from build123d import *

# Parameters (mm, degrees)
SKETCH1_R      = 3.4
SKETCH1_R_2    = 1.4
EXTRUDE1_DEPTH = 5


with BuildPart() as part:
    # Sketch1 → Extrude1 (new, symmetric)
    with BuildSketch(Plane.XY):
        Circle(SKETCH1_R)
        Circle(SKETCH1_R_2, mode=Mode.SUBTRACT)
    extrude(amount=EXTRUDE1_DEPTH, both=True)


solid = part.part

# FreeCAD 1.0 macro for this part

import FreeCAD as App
import Part
import Sketcher
from FreeCAD import Vector

doc = App.newDocument("Part")
body = doc.addObject("PartDesign::Body", "Body")

sketch1 = doc.addObject("Sketcher::SketchObject", "Sketch")
body.addObject(sketch1)
sketch1.AttachmentSupport = (doc.XY_Plane, [""])
sketch1.MapMode = "FlatFace"
sketch1.addGeometry([
    Part.Circle(Vector(0, 0, 0), Vector(0, 0, 1), 3.4),
    Part.Circle(Vector(0, 0, 0), Vector(0, 0, 1), 1.4),
], False)
sketch1.addConstraint([
    Sketcher.Constraint("Coincident", 0, 3, -1, 1),
    Sketcher.Constraint("Coincident", 1, 3, -1, 1),
    Sketcher.Constraint("Diameter", 0, 6.8),
    Sketcher.Constraint("Diameter", 1, 2.8),
])
pad1 = doc.addObject("PartDesign::Pad", "Pad")
body.addObject(pad1)
pad1.Profile = sketch1
pad1.Length = 10
pad1.Midplane = True

doc.recompute()
